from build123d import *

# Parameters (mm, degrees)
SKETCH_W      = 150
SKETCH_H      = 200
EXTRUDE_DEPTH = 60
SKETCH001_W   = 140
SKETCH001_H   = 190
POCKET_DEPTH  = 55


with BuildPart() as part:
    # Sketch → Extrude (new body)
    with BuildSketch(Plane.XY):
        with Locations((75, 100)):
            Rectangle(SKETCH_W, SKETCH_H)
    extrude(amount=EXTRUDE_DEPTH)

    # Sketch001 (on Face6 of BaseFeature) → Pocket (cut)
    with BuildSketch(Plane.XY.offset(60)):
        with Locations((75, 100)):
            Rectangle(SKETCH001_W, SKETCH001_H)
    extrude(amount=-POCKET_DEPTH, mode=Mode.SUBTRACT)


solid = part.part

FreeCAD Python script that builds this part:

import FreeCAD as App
import Part
import Sketcher
from FreeCAD import Vector
Q = App.Units.Quantity

doc = App.newDocument("Part")
body = doc.addObject("PartDesign::Body", "Body")

sketch1 = doc.addObject("Sketcher::SketchObject", "Sketch")
body.addObject(sketch1)
sketch1.AttachmentSupport = (doc.XY_Plane, [""])
sketch1.MapMode = "FlatFace"
sketch1.addGeometry([
    Part.LineSegment(Vector(0, 200, 0), Vector(0, 0, 0)),
    Part.LineSegment(Vector(0, 0, 0), Vector(150, 0, 0)),
    Part.LineSegment(Vector(150, 0, 0), Vector(150, 200, 0)),
    Part.LineSegment(Vector(150, 200, 0), Vector(0, 200, 0)),
], False)
sketch1.addConstraint([
    Sketcher.Constraint("Coincident", 0, 2, 1, 1),
    Sketcher.Constraint("Coincident", 1, 2, 2, 1),
    Sketcher.Constraint("Coincident", 2, 2, 3, 1),
    Sketcher.Constraint("Coincident", 3, 2, 0, 1),
    Sketcher.Constraint("Vertical", 0),
    Sketcher.Constraint("Horizontal", 1),
    Sketcher.Constraint("Vertical", 2),
    Sketcher.Constraint("Horizontal", 3),
    Sketcher.Constraint("Coincident", 0, 2, -1, 1),
    Sketcher.Constraint("DistanceX", 1, 1, 1, 2, Q("150 mm")),
    Sketcher.Constraint("DistanceY", 0, 2, 0, 1, Q("200 mm")),
])
pad1 = doc.addObject("PartDesign::Pad", "Pad")
body.addObject(pad1)
pad1.Profile = sketch1
pad1.Length = 60

sketch2 = doc.addObject("Sketcher::SketchObject", "Sketch001")
body.addObject(sketch2)
sketch2.AttachmentSupport = (doc.XY_Plane, [""])
sketch2.MapMode = "FlatFace"
sketch2.AttachmentOffset = App.Placement(Vector(0, 0, 60), App.Rotation())
sketch2.addGeometry([
    Part.LineSegment(Vector(5, 195, 0), Vector(5, 5, 0)),
    Part.LineSegment(Vector(5, 5, 0), Vector(145, 5, 0)),
    Part.LineSegment(Vector(145, 5, 0), Vector(145, 195, 0)),
    Part.LineSegment(Vector(145, 195, 0), Vector(5, 195, 0)),
], False)
sketch2.addConstraint([
    Sketcher.Constraint("Coincident", 0, 2, 1, 1),
    Sketcher.Constraint("Coincident", 1, 2, 2, 1),
    Sketcher.Constraint("Coincident", 2, 2, 3, 1),
    Sketcher.Constraint("Coincident", 3, 2, 0, 1),
    Sketcher.Constraint("Vertical", 0),
    Sketcher.Constraint("Horizontal", 1),
    Sketcher.Constraint("Vertical", 2),
    Sketcher.Constraint("Horizontal", 3),
    Sketcher.Constraint("DistanceX", 1, 1, 1, 2, Q("140 mm")),
    Sketcher.Constraint("DistanceY", 0, 2, 0, 1, Q("190 mm")),
    Sketcher.Constraint("DistanceX", -1, 1, 0, 2, Q("5 mm")),
    Sketcher.Constraint("DistanceY", -1, 1, 0, 2, Q("5 mm")),
])
pocket1 = doc.addObject("PartDesign::Pocket", "Pocket")
body.addObject(pocket1)
pocket1.Profile = sketch2
pocket1.Length = 55

doc.recompute()
